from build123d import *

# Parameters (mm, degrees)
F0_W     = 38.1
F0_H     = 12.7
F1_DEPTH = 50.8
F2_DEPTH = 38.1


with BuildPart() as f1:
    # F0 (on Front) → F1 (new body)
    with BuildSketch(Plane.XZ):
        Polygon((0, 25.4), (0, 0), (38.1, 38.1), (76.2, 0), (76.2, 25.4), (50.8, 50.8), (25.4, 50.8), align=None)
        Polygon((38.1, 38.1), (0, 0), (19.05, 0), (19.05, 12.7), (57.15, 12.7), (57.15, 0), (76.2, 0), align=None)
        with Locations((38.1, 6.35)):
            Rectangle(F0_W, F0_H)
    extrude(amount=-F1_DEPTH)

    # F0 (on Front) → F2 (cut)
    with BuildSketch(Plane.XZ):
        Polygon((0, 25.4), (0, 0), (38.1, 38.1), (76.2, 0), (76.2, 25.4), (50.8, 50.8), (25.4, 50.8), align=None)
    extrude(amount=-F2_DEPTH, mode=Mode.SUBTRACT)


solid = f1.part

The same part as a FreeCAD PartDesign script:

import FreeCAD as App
import Part
import Sketcher

V = App.Vector
Q = App.Units.Quantity

doc = App.newDocument("Part")
params = doc.addObject("Spreadsheet::Sheet", "Params")
for row, (alias, value) in enumerate([
    ("sketch1_width", "3 in"),
    ("sketch1_width2", "1 in"),
    ("pad1_length", "2 in"),
    ("sketch2_width", "1 in"),
    ("pocket1_length", "1.5 in"),
], start=1):
    params.set(f"A{row}", alias)
    params.set(f"B{row}", "=" + value)
    params.setAlias(f"B{row}", alias)

body = doc.addObject("PartDesign::Body", "Body")

# Sketch on XZ plane
sketch1 = body.newObject("Sketcher::SketchObject", "Sketch")
sketch1.AttachmentSupport = (doc.getObject("XZ_Plane"), [""])
sketch1.MapMode = "FlatFace"
sketch1.addGeometry([
    Part.LineSegment(V(0, 25.4, 0), V(0, 0, 0)),  # 0
    Part.LineSegment(V(0, 0, 0), V(76.2, 0, 0)),  # 1
    Part.LineSegment(V(76.2, 0, 0), V(76.2, 25.4, 0)),  # 2
    Part.LineSegment(V(76.2, 25.4, 0), V(50.8, 50.8, 0)),  # 3
    Part.LineSegment(V(50.8, 50.8, 0), V(25.4, 50.8, 0)),  # 4
    Part.LineSegment(V(25.4, 50.8, 0), V(0, 25.4, 0)),  # 5
], False)
sketch1.addConstraint([
    Sketcher.Constraint("Coincident", 0, 2, 1, 1),
    Sketcher.Constraint("Coincident", 1, 2, 2, 1),
    Sketcher.Constraint("Coincident", 2, 2, 3, 1),
    Sketcher.Constraint("Coincident", 3, 2, 4, 1),
    Sketcher.Constraint("Coincident", 4, 2, 5, 1),
    Sketcher.Constraint("Coincident", 5, 2, 0, 1),
    Sketcher.Constraint("Vertical", 0),
    Sketcher.Constraint("Horizontal", 1),
    Sketcher.Constraint("Vertical", 2),
    Sketcher.Constraint("Horizontal", 4),
    Sketcher.Constraint("Coincident", 0, 2, -1, 1),
    Sketcher.Constraint("Perpendicular", 3, 5),
    Sketcher.Constraint("Horizontal", 2, 2, 5, 2),
    Sketcher.Constraint("Equal", 4, 0),
    Sketcher.Constraint("Equal", 3, 5),
    Sketcher.Constraint("DistanceX", 1, 1, 1, 2, Q("3 in")),
    Sketcher.Constraint("DistanceX", 4, 2, 4, 1, Q("1 in")),
])
sketch1.setExpression("Constraints[15]", "Params.sketch1_width")
sketch1.setExpression("Constraints[16]", "Params.sketch1_width2")
pad1 = body.newObject("PartDesign::Pad", "Pad")
pad1.Profile = sketch1
pad1.setExpression("Length", "Params.pad1_length")
pad1.Reversed = True

# Sketch on XZ plane
sketch2 = body.newObject("Sketcher::SketchObject", "Sketch001")
sketch2.AttachmentSupport = (doc.getObject("XZ_Plane"), [""])
sketch2.MapMode = "FlatFace"
sketch2.addGeometry([
    Part.LineSegment(V(0, 25.4, 0), V(0, 0, 0)),  # 0
    Part.LineSegment(V(0, 0, 0), V(38.1, 38.1, 0)),  # 1
    Part.LineSegment(V(38.1, 38.1, 0), V(76.2, 0, 0)),  # 2
    Part.LineSegment(V(76.2, 0, 0), V(76.2, 25.4, 0)),  # 3
    Part.LineSegment(V(76.2, 25.4, 0), V(50.8, 50.8, 0)),  # 4
    Part.LineSegment(V(50.8, 50.8, 0), V(25.4, 50.8, 0)),  # 5
    Part.LineSegment(V(25.4, 50.8, 0), V(0, 25.4, 0)),  # 6
], False)
sketch2.addConstraint([
    Sketcher.Constraint("Coincident", 0, 2, 1, 1),
    Sketcher.Constraint("Coincident", 1, 2, 2, 1),
    Sketcher.Constraint("Coincident", 2, 2, 3, 1),
    Sketcher.Constraint("Coincident", 3, 2, 4, 1),
    Sketcher.Constraint("Coincident", 4, 2, 5, 1),
    Sketcher.Constraint("Coincident", 5, 2, 6, 1),
    Sketcher.Constraint("Coincident", 6, 2, 0, 1),
    Sketcher.Constraint("Vertical", 0),
    Sketcher.Constraint("Vertical", 3),
    Sketcher.Constraint("Horizontal", 5),
    Sketcher.Constraint("Coincident", 0, 2, -1, 1),
    Sketcher.Constraint("PointOnObject", 2, 2, -1),
    Sketcher.Constraint("Perpendicular", 1, 2),
    Sketcher.Constraint("Parallel", 2, 4),
    Sketcher.Constraint("Perpendicular", 4, 6),
    Sketcher.Constraint("Horizontal", 3, 2, 6, 2),
    Sketcher.Constraint("Equal", 5, 0),
    Sketcher.Constraint("Equal", 1, 2),
    Sketcher.Constraint("DistanceX", 5, 2, 5, 1, Q("1 in")),
    Sketcher.Constraint("DistanceX", -1, 1, 2, 2, Q("3 in")),
])
sketch2.setExpression("Constraints[18]", "Params.sketch2_width")
pocket1 = body.newObject("PartDesign::Pocket", "Pocket")
pocket1.Profile = sketch2
pocket1.setExpression("Length", "Params.pocket1_length")

doc.recompute()
